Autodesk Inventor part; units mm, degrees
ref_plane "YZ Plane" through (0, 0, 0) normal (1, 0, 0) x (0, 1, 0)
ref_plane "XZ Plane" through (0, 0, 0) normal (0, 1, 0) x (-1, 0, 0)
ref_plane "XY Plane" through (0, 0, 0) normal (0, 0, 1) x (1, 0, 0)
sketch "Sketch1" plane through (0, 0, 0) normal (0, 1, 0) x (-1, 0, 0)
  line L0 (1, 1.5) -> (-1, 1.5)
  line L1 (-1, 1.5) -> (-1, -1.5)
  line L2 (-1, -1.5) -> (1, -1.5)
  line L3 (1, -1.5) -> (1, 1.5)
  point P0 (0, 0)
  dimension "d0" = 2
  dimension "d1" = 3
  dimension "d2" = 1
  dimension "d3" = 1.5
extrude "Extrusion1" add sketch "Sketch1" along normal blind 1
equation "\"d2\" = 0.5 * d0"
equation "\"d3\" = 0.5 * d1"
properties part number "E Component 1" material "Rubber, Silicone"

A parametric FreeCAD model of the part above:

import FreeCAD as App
import Part
import Sketcher


def add_polygon(sketch, points):
    """Adds a closed chain of lines whose ends are joined by coincident constraints."""
    first, n = sketch.GeometryCount, len(points)
    for a, b in zip(points, points[1:] + points[:1]):
        sketch.addGeometry(Part.LineSegment(App.Vector(*a, 0), App.Vector(*b, 0)), False)
    for i in range(n):
        sketch.addConstraint(Sketcher.Constraint("Coincident", first + i, 2, first + (i + 1) % n, 1))

doc = App.newDocument("Part")
params = doc.addObject("Spreadsheet::Sheet", "Params")
for row, (alias, value) in enumerate([
    ("sketch1_width", "2 mm"),
    ("sketch1_height", "3 mm"),
    ("pad1_length", "1 mm"),
], start=1):
    params.set(f"A{row}", alias)
    params.set(f"B{row}", "=" + value)
    params.setAlias(f"B{row}", alias)

body = doc.addObject("PartDesign::Body", "Body")

# Sketch on XZ plane
sketch1 = body.newObject("Sketcher::SketchObject", "Sketch")
sketch1.AttachmentSupport = (doc.getObject("XZ_Plane"), [""])
sketch1.MapMode = "FlatFace"
add_polygon(sketch1, [(-1, -1.5), (-1, 1.5), (1, 1.5), (1, -1.5)])  # lines 0-3
sketch1.addConstraint(Sketcher.Constraint("Vertical", 0))
sketch1.addConstraint(Sketcher.Constraint("Horizontal", 1))
sketch1.addConstraint(Sketcher.Constraint("Vertical", 2))
sketch1.addConstraint(Sketcher.Constraint("Horizontal", 3))
sketch1.addConstraint(Sketcher.Constraint("Symmetric", 0, 2, 2, 2, -1, 1))
sketch1.addConstraint(Sketcher.Constraint("DistanceX", 1, 1, 1, 2, 2.0))
sketch1.addConstraint(Sketcher.Constraint("DistanceY", 0, 1, 0, 2, 3.0))
sketch1.setExpression("Constraints[9]", "Params.sketch1_width")
sketch1.setExpression("Constraints[10]", "Params.sketch1_height")
pad1 = body.newObject("PartDesign::Pad", "Pad")
pad1.Profile = sketch1
pad1.setExpression("Length", "Params.pad1_length")
pad1.Reversed = True

doc.recompute()
